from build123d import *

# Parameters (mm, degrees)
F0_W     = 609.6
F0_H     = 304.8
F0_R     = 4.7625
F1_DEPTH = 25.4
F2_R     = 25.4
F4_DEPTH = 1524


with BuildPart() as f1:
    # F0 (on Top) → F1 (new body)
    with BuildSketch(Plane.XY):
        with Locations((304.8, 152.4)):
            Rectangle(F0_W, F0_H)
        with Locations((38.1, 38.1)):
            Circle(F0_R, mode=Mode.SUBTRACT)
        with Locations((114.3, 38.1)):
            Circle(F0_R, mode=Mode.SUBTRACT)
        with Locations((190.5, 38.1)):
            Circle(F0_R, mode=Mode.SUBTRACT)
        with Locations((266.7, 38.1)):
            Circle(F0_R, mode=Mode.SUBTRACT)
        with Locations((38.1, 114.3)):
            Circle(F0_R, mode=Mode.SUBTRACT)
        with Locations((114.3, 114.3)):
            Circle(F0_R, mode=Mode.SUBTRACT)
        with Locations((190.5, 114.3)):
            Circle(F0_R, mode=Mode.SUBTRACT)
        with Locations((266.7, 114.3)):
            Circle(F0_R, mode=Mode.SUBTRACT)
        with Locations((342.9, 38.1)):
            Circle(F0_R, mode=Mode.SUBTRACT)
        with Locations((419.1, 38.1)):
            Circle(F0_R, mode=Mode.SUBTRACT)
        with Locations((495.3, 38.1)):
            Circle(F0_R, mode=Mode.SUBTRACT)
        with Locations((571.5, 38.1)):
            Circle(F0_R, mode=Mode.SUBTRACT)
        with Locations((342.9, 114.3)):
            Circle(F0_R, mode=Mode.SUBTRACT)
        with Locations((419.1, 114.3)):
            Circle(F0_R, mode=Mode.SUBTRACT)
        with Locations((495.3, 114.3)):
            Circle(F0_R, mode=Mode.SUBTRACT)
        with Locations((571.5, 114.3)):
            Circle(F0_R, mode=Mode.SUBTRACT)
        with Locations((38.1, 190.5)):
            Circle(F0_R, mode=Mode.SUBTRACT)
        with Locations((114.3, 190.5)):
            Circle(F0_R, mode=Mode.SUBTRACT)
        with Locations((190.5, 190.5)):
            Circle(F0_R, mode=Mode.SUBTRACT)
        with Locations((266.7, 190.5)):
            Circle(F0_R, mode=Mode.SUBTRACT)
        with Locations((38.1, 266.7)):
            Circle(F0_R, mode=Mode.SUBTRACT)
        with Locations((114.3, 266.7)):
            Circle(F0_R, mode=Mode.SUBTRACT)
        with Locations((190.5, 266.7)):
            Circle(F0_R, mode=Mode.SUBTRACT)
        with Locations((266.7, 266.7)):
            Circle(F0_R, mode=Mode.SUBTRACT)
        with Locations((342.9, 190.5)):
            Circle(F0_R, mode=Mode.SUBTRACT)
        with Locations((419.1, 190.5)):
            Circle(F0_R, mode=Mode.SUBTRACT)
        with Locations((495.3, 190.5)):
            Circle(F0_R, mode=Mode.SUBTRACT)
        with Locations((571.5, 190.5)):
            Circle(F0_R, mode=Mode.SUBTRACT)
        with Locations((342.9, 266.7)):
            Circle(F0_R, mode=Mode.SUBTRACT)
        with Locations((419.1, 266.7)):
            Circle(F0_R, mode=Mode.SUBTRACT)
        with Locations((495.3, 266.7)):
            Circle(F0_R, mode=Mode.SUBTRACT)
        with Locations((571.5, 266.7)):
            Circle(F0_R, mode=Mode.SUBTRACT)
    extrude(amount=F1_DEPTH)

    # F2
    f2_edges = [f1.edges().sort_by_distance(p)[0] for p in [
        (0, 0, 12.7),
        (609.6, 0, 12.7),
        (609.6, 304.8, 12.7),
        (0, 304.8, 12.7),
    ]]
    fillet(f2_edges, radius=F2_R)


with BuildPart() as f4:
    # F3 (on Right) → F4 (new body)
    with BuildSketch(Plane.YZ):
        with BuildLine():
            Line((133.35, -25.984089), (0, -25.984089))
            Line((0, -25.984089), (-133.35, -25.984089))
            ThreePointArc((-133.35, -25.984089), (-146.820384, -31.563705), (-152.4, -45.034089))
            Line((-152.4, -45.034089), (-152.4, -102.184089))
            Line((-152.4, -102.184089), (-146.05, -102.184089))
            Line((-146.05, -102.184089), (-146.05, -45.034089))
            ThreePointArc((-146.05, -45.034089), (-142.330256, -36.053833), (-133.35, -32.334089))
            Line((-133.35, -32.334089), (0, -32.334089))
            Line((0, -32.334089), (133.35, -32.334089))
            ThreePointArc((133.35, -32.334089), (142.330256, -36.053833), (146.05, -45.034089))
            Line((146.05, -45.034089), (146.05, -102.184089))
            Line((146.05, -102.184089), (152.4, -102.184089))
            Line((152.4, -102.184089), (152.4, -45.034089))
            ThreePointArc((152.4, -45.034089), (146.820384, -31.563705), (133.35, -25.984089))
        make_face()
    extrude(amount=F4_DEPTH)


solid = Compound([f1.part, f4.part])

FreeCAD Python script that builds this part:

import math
import FreeCAD as App
import Part
import Sketcher
Q = App.Units.Quantity


def edges_at(feature, points):
    """Names of the edges that pass closest to the given points."""
    edges = feature.Shape.Edges
    near = lambda p: min(range(len(edges)), key=lambda i: edges[i].distToShape(Part.Vertex(*p))[0])
    return sorted({f"Edge{near(p) + 1}" for p in points})

doc = App.newDocument("Part")
body = doc.addObject("PartDesign::Body", "Body")

sketch1 = body.newObject("Sketcher::SketchObject", "Sketch")
sketch1.AttachmentSupport = (doc.getObject("XY_Plane"), [""])
sketch1.MapMode = "FlatFace"
sketch1.addGeometry([
    Part.LineSegment(App.Vector(0, 304.8, 0), App.Vector(0, 0, 0)),
    Part.LineSegment(App.Vector(0, 0, 0), App.Vector(609.6, 0, 0)),
    Part.LineSegment(App.Vector(609.6, 0, 0), App.Vector(609.6, 304.8, 0)),
    Part.LineSegment(App.Vector(609.6, 304.8, 0), App.Vector(0, 304.8, 0)),
    Part.Circle(App.Vector(38.1, 38.1, 0), App.Vector(0, 0, 1), 4.8),
    Part.Circle(App.Vector(114.3, 38.1, 0), App.Vector(0, 0, 1), 4.8),
    Part.Circle(App.Vector(190.5, 38.1, 0), App.Vector(0, 0, 1), 4.8),
    Part.Circle(App.Vector(266.7, 38.1, 0), App.Vector(0, 0, 1), 4.8),
    Part.Circle(App.Vector(38.1, 114.3, 0), App.Vector(0, 0, 1), 4.8),
    Part.Circle(App.Vector(114.3, 114.3, 0), App.Vector(0, 0, 1), 4.8),
    Part.Circle(App.Vector(190.5, 114.3, 0), App.Vector(0, 0, 1), 4.8),
    Part.Circle(App.Vector(266.7, 114.3, 0), App.Vector(0, 0, 1), 4.8),
    Part.Circle(App.Vector(342.9, 38.1, 0), App.Vector(0, 0, 1), 4.8),
    Part.Circle(App.Vector(419.1, 38.1, 0), App.Vector(0, 0, 1), 4.8),
    Part.Circle(App.Vector(495.3, 38.1, 0), App.Vector(0, 0, 1), 4.8),
    Part.Circle(App.Vector(571.5, 38.1, 0), App.Vector(0, 0, 1), 4.8),
    Part.Circle(App.Vector(342.9, 114.3, 0), App.Vector(0, 0, 1), 4.8),
    Part.Circle(App.Vector(419.1, 114.3, 0), App.Vector(0, 0, 1), 4.8),
    Part.Circle(App.Vector(495.3, 114.3, 0), App.Vector(0, 0, 1), 4.8),
    Part.Circle(App.Vector(571.5, 114.3, 0), App.Vector(0, 0, 1), 4.8),
    Part.Circle(App.Vector(38.1, 190.5, 0), App.Vector(0, 0, 1), 4.8),
    Part.Circle(App.Vector(114.3, 190.5, 0), App.Vector(0, 0, 1), 4.8),
    Part.Circle(App.Vector(190.5, 190.5, 0), App.Vector(0, 0, 1), 4.8),
    Part.Circle(App.Vector(266.7, 190.5, 0), App.Vector(0, 0, 1), 4.8),
    Part.Circle(App.Vector(38.1, 266.7, 0), App.Vector(0, 0, 1), 4.8),
    Part.Circle(App.Vector(114.3, 266.7, 0), App.Vector(0, 0, 1), 4.8),
    Part.Circle(App.Vector(190.5, 266.7, 0), App.Vector(0, 0, 1), 4.8),
    Part.Circle(App.Vector(266.7, 266.7, 0), App.Vector(0, 0, 1), 4.8),
    Part.Circle(App.Vector(342.9, 190.5, 0), App.Vector(0, 0, 1), 4.8),
    Part.Circle(App.Vector(419.1, 190.5, 0), App.Vector(0, 0, 1), 4.8),
    Part.Circle(App.Vector(495.3, 190.5, 0), App.Vector(0, 0, 1), 4.8),
    Part.Circle(App.Vector(571.5, 190.5, 0), App.Vector(0, 0, 1), 4.8),
    Part.Circle(App.Vector(342.9, 266.7, 0), App.Vector(0, 0, 1), 4.8),
    Part.Circle(App.Vector(419.1, 266.7, 0), App.Vector(0, 0, 1), 4.8),
    Part.Circle(App.Vector(495.3, 266.7, 0), App.Vector(0, 0, 1), 4.8),
    Part.Circle(App.Vector(571.5, 266.7, 0), App.Vector(0, 0, 1), 4.8),
], False)
sketch1.addConstraint([
    Sketcher.Constraint("Coincident", 0, 2, 1, 1),
    Sketcher.Constraint("Coincident", 1, 2, 2, 1),
    Sketcher.Constraint("Coincident", 2, 2, 3, 1),
    Sketcher.Constraint("Coincident", 3, 2, 0, 1),
    Sketcher.Constraint("Vertical", 0),
    Sketcher.Constraint("Horizontal", 1),
    Sketcher.Constraint("Vertical", 2),
    Sketcher.Constraint("Horizontal", 3),
    Sketcher.Constraint("Coincident", 0, 2, -1, 1),
    Sketcher.Constraint("Equal", 4, 5),
    Sketcher.Constraint("Equal", 5, 6),
    Sketcher.Constraint("Equal", 6, 7),
    Sketcher.Constraint("Equal", 7, 8),
    Sketcher.Constraint("Equal", 8, 9),
    Sketcher.Constraint("Equal", 9, 10),
    Sketcher.Constraint("Equal", 10, 11),
    Sketcher.Constraint("Equal", 11, 12),
    Sketcher.Constraint("Equal", 12, 13),
    Sketcher.Constraint("Equal", 13, 14),
    Sketcher.Constraint("Equal", 14, 15),
    Sketcher.Constraint("Equal", 15, 16),
    Sketcher.Constraint("Equal", 16, 17),
    Sketcher.Constraint("Equal", 17, 18),
    Sketcher.Constraint("Equal", 18, 19),
    Sketcher.Constraint("Equal", 19, 20),
    Sketcher.Constraint("Equal", 20, 21),
    Sketcher.Constraint("Equal", 21, 22),
    Sketcher.Constraint("Equal", 22, 23),
    Sketcher.Constraint("Equal", 23, 24),
    Sketcher.Constraint("Equal", 24, 25),
    Sketcher.Constraint("Equal", 25, 26),
    Sketcher.Constraint("Equal", 26, 27),
    Sketcher.Constraint("Equal", 27, 28),
    Sketcher.Constraint("Equal", 28, 29),
    Sketcher.Constraint("Equal", 29, 30),
    Sketcher.Constraint("Equal", 30, 31),
    Sketcher.Constraint("Equal", 31, 32),
    Sketcher.Constraint("Equal", 32, 33),
    Sketcher.Constraint("Equal", 33, 34),
    Sketcher.Constraint("Equal", 34, 35),
    Sketcher.Constraint("Horizontal", 4, 3, 5, 3),
    Sketcher.Constraint("Horizontal", 5, 3, 6, 3),
    Sketcher.Constraint("Horizontal", 6, 3, 7, 3),
    Sketcher.Constraint("Horizontal", 8, 3, 9, 3),
    Sketcher.Constraint("Horizontal", 9, 3, 10, 3),
    Sketcher.Constraint("Horizontal", 10, 3, 11, 3),
    Sketcher.Constraint("Horizontal", 7, 3, 12, 3),
    Sketcher.Constraint("Horizontal", 12, 3, 13, 3),
    Sketcher.Constraint("Horizontal", 13, 3, 14, 3),
    Sketcher.Constraint("Horizontal", 14, 3, 15, 3),
    Sketcher.Constraint("Horizontal", 11, 3, 16, 3),
    Sketcher.Constraint("Horizontal", 16, 3, 17, 3),
    Sketcher.Constraint("Horizontal", 17, 3, 18, 3),
    Sketcher.Constraint("Horizontal", 18, 3, 19, 3),
    Sketcher.Constraint("Horizontal", 20, 3, 21, 3),
    Sketcher.Constraint("Horizontal", 21, 3, 22, 3),
    Sketcher.Constraint("Horizontal", 22, 3, 23, 3),
    Sketcher.Constraint("Horizontal", 24, 3, 25, 3),
    Sketcher.Constraint("Horizontal", 25, 3, 26, 3),
    Sketcher.Constraint("Horizontal", 26, 3, 27, 3),
    Sketcher.Constraint("Horizontal", 23, 3, 28, 3),
    Sketcher.Constraint("Horizontal", 28, 3, 29, 3),
    Sketcher.Constraint("Horizontal", 29, 3, 30, 3),
    Sketcher.Constraint("Horizontal", 30, 3, 31, 3),
    Sketcher.Constraint("Horizontal", 27, 3, 32, 3),
    Sketcher.Constraint("Horizontal", 32, 3, 33, 3),
    Sketcher.Constraint("Horizontal", 33, 3, 34, 3),
    Sketcher.Constraint("Horizontal", 34, 3, 35, 3),
    Sketcher.Constraint("Vertical", 4, 3, 8, 3),
    Sketcher.Constraint("Vertical", 5, 3, 9, 3),
    Sketcher.Constraint("Vertical", 6, 3, 10, 3),
    Sketcher.Constraint("Vertical", 7, 3, 11, 3),
    Sketcher.Constraint("Vertical", 12, 3, 16, 3),
    Sketcher.Constraint("Vertical", 13, 3, 17, 3),
    Sketcher.Constraint("Vertical", 14, 3, 18, 3),
    Sketcher.Constraint("Vertical", 15, 3, 19, 3),
    Sketcher.Constraint("Vertical", 8, 3, 20, 3),
    Sketcher.Constraint("Vertical", 9, 3, 21, 3),
    Sketcher.Constraint("Vertical", 10, 3, 22, 3),
    Sketcher.Constraint("Vertical", 11, 3, 23, 3),
    Sketcher.Constraint("Vertical", 20, 3, 24, 3),
    Sketcher.Constraint("Vertical", 21, 3, 25, 3),
    Sketcher.Constraint("Vertical", 22, 3, 26, 3),
    Sketcher.Constraint("Vertical", 23, 3, 27, 3),
    Sketcher.Constraint("Vertical", 16, 3, 28, 3),
    Sketcher.Constraint("Vertical", 17, 3, 29, 3),
    Sketcher.Constraint("Vertical", 18, 3, 30, 3),
    Sketcher.Constraint("Vertical", 19, 3, 31, 3),
    Sketcher.Constraint("Vertical", 28, 3, 32, 3),
    Sketcher.Constraint("Vertical", 29, 3, 33, 3),
    Sketcher.Constraint("Vertical", 30, 3, 34, 3),
    Sketcher.Constraint("Vertical", 31, 3, 35, 3),
    Sketcher.Constraint("DistanceX", 1, 1, 1, 2, Q("24 in")),
    Sketcher.Constraint("DistanceY", 0, 2, 0, 1, Q("12 in")),
    Sketcher.Constraint("Diameter", 4, Q("0.375 in")),
    Sketcher.Constraint("DistanceX", 4, 3, 5, 3, Q("3 in")),
    Sketcher.Constraint("DistanceX", 5, 3, 6, 3, Q("3 in")),
    Sketcher.Constraint("DistanceX", 6, 3, 7, 3, Q("3 in")),
    Sketcher.Constraint("DistanceY", 4, 3, 8, 3, Q("3 in")),
    Sketcher.Constraint("DistanceX", 7, 3, 12, 3, Q("3 in")),
    Sketcher.Constraint("DistanceX", 12, 3, 13, 3, Q("3 in")),
    Sketcher.Constraint("DistanceX", 13, 3, 14, 3, Q("3 in")),
    Sketcher.Constraint("DistanceX", 14, 3, 15, 3, Q("3 in")),
    Sketcher.Constraint("DistanceY", 8, 3, 20, 3, Q("3 in")),
    Sketcher.Constraint("DistanceY", 20, 3, 24, 3, Q("3 in")),
    Sketcher.Constraint("DistanceX", -1, 1, 4, 3, Q("1.5 in")),
    Sketcher.Constraint("DistanceY", -1, 1, 4, 3, Q("1.5 in")),
])
pad1 = body.newObject("PartDesign::Pad", "Pad")
pad1.Profile = sketch1
pad1.Length = Q("1 in")
doc.recompute()

fillet = body.newObject("PartDesign::Fillet", "Fillet")
fillet.Base = (pad1, edges_at(pad1, [
    (0, 0, 12.7),
    (609.6, 0, 12.7),
    (609.6, 304.8, 12.7),
    (0, 304.8, 12.7),
]))
fillet.Radius = Q("1 in")
body2 = doc.addObject("PartDesign::Body", "Body001")

sketch2 = body2.newObject("Sketcher::SketchObject", "Sketch001")
sketch2.AttachmentSupport = (doc.getObject("YZ_Plane001"), [""])
sketch2.MapMode = "FlatFace"
sketch2.addGeometry([
    Part.LineSegment(App.Vector(133, -26, 0), App.Vector(-133, -26, 0)),
    Part.ArcOfCircle(Part.Circle(App.Vector(-133, -45, 0), App.Vector(0, 0, 1), 19), math.radians(90), math.radians(180)),
    Part.LineSegment(App.Vector(-152, -45, 0), App.Vector(-152, -102, 0)),
    Part.LineSegment(App.Vector(-152, -102, 0), App.Vector(-146, -102, 0)),
    Part.LineSegment(App.Vector(-146, -102, 0), App.Vector(-146, -45, 0)),
    Part.ArcOfCircle(Part.Circle(App.Vector(-133, -45, 0), App.Vector(0, 0, 1), 13), math.radians(90), math.radians(180)),
    Part.LineSegment(App.Vector(-133, -32, 0), App.Vector(133, -32, 0)),
    Part.ArcOfCircle(Part.Circle(App.Vector(133, -45, 0), App.Vector(0, 0, 1), 13), math.radians(0), math.radians(90)),
    Part.LineSegment(App.Vector(146, -45, 0), App.Vector(146, -102, 0)),
    Part.LineSegment(App.Vector(146, -102, 0), App.Vector(152, -102, 0)),
    Part.LineSegment(App.Vector(152, -102, 0), App.Vector(152, -45, 0)),
    Part.ArcOfCircle(Part.Circle(App.Vector(133, -45, 0), App.Vector(0, 0, 1), 19), math.radians(0), math.radians(90)),
], False)
sketch2.addConstraint([
    Sketcher.Constraint("Tangent", 0, 2, 1, 1),
    Sketcher.Constraint("Tangent", 1, 2, 2, 1),
    Sketcher.Constraint("Coincident", 2, 2, 3, 1),
    Sketcher.Constraint("Coincident", 3, 2, 4, 1),
    Sketcher.Constraint("Tangent", 4, 2, 5, 2),
    Sketcher.Constraint("Tangent", 5, 1, 6, 1),
    Sketcher.Constraint("Tangent", 6, 2, 7, 2),
    Sketcher.Constraint("Tangent", 7, 1, 8, 1),
    Sketcher.Constraint("Coincident", 8, 2, 9, 1),
    Sketcher.Constraint("Coincident", 9, 2, 10, 1),
    Sketcher.Constraint("Tangent", 10, 2, 11, 1),
    Sketcher.Constraint("Tangent", 11, 2, 0, 1),
    Sketcher.Constraint("Horizontal", 0),
    Sketcher.Constraint("Vertical", 2),
    Sketcher.Constraint("Horizontal", 3),
    Sketcher.Constraint("Vertical", 4),
    Sketcher.Constraint("Horizontal", 6),
    Sketcher.Constraint("Vertical", 8),
    Sketcher.Constraint("Horizontal", 9),
    Sketcher.Constraint("Vertical", 10),
    Sketcher.Constraint("Coincident", 5, 3, 1, 3),
    Sketcher.Constraint("Coincident", 11, 3, 7, 3),
    Sketcher.Constraint("Equal", 5, 7),
    Sketcher.Constraint("Symmetric", 3, 2, 8, 2, -2),
    Sketcher.Constraint("Radius", 5, Q("0.5 in")),
    Sketcher.Constraint("Radius", 1, Q("0.75 in")),
    Sketcher.Constraint("DistanceX", 0, 2, 0, 1, Q("10.5 in")),
    Sketcher.Constraint("DistanceY", 2, 2, 0, 2, Q("3 in")),
    Sketcher.Constraint("DistanceY", 1, 3, -1, 1, 45.03409),
])
pad2 = body2.newObject("PartDesign::Pad", "Pad001")
pad2.Profile = sketch2
pad2.Length = Q("60 in")

doc.recompute()
